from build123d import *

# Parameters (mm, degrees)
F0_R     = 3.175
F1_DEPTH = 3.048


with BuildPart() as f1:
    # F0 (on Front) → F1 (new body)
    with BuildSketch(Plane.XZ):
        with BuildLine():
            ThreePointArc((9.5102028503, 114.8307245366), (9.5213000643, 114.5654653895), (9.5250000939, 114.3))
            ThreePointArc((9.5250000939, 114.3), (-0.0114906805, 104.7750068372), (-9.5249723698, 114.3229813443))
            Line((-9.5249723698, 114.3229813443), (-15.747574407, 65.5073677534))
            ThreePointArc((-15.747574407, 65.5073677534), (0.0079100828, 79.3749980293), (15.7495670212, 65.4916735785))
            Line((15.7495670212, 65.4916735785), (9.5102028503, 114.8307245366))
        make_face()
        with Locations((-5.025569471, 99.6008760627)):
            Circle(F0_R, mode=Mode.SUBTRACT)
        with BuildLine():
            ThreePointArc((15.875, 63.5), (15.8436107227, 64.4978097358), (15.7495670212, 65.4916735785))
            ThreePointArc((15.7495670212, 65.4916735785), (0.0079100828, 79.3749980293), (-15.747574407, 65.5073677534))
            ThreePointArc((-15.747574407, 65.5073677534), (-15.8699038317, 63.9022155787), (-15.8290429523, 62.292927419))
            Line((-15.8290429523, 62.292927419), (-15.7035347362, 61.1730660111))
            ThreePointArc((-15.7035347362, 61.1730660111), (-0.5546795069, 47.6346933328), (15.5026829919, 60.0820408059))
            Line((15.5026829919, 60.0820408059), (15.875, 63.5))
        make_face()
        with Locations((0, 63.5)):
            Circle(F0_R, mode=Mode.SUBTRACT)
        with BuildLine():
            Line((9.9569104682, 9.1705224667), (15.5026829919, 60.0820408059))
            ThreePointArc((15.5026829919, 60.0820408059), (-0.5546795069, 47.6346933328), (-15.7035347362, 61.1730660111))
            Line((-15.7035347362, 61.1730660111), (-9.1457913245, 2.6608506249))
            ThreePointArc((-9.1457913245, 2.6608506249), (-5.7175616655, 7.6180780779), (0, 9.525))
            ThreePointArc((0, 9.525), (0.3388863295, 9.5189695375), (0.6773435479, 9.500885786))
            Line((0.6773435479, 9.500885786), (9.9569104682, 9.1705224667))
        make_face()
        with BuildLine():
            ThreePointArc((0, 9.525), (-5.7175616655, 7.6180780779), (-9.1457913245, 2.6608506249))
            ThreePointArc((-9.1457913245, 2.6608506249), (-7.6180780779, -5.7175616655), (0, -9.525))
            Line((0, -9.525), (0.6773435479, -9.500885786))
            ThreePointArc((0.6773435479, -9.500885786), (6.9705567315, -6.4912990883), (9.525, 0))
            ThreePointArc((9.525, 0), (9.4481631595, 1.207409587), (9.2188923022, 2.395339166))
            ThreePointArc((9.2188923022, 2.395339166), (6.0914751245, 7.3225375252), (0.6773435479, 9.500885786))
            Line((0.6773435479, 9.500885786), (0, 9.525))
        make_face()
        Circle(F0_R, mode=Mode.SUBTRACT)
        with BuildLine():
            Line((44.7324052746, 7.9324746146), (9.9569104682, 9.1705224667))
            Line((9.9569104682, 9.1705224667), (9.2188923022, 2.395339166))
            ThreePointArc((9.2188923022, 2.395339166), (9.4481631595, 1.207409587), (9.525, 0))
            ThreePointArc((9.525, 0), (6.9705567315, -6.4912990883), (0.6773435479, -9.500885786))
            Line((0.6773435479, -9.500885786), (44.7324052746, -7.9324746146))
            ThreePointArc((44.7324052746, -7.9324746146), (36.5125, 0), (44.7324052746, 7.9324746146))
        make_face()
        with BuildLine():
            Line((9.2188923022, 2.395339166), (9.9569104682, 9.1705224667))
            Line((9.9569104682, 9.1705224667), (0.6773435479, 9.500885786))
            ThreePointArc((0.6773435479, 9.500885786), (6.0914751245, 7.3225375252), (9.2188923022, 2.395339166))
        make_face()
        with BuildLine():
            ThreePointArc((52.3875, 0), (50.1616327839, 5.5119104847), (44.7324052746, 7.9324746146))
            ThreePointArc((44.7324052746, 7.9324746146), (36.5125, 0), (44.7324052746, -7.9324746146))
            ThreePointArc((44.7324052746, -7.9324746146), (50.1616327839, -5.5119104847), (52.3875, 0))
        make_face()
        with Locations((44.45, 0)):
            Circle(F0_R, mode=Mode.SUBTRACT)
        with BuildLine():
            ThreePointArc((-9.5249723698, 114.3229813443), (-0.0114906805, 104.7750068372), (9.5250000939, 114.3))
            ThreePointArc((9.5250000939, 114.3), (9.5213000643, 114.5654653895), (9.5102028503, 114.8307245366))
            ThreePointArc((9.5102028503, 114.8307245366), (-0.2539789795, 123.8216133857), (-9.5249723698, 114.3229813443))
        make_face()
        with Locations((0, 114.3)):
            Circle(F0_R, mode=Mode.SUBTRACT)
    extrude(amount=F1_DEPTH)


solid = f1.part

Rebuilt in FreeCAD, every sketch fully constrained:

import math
import FreeCAD as App
import Part
import Sketcher
Q = App.Units.Quantity

doc = App.newDocument("Part")
params = doc.addObject("Spreadsheet::Sheet", "Params")
for row, (alias, value) in enumerate([
    ("sketch1_diameter", "0.25 in"),
    ("sketch1_radius", "0.625 in"),
    ("sketch1_radius2", "0.375 in"),
    ("sketch1_radius3", "0.3125 in"),
    ("pad1_length", "0.12 in"),
], start=1):
    params.set(f"A{row}", alias)
    params.set(f"B{row}", "=" + value)
    params.setAlias(f"B{row}", alias)

body = doc.addObject("PartDesign::Body", "Body")

# Sketch on XZ plane
sketch1 = body.newObject("Sketcher::SketchObject", "Sketch")
sketch1.AttachmentSupport = (doc.getObject("XZ_Plane"), [""])
sketch1.MapMode = "FlatFace"
sketch1.addGeometry([
    Part.LineSegment(App.Vector(44.732405, 7.932475, 0), App.Vector(9.95691, 9.170522, 0)),  # 0
    Part.LineSegment(App.Vector(9.95691, 9.170522, 0), App.Vector(15.875, 63.5, 0)),  # 1
    Part.ArcOfCircle(Part.Circle(App.Vector(0, 63.5, 0), App.Vector(0, 0, 1), 15.875), math.radians(0), math.radians(7.207307)),  # 2
    Part.LineSegment(App.Vector(15.749567, 65.491674, 0), App.Vector(9.510203, 114.830725, 0)),  # 3
    Part.ArcOfCircle(Part.Circle(App.Vector(0, 114.3, 0), App.Vector(0, 0, 1), 9.525), math.radians(3.194124), math.radians(179.86176)),  # 4
    Part.LineSegment(App.Vector(-9.524972, 114.322981, 0), App.Vector(-15.747574, 65.507368, 0)),  # 5
    Part.ArcOfCircle(Part.Circle(App.Vector(0, 63.5, 0), App.Vector(0, 0, 1), 15.875), math.radians(172.735595), math.radians(184.360755)),  # 6
    Part.LineSegment(App.Vector(-15.829043, 62.292927, 0), App.Vector(-15.703535, 61.173066, 0)),  # 7
    Part.LineSegment(App.Vector(-15.703535, 61.173066, 0), App.Vector(-9.145791, 2.660851, 0)),  # 8
    Part.ArcOfCircle(Part.Circle(App.Vector(0, 0, 0), App.Vector(0, 0, 1), 9.525), math.radians(163.778323), math.radians(270)),  # 9
    Part.LineSegment(App.Vector(0, -9.525, 0), App.Vector(0.677344, -9.500886, 0)),  # 10
    Part.LineSegment(App.Vector(0.677344, -9.500886, 0), App.Vector(44.732405, -7.932475, 0)),  # 11
    Part.ArcOfCircle(Part.Circle(App.Vector(44.45, 0, 0), App.Vector(0, 0, 1), 7.9375), math.radians(-87.961065), math.radians(0)),  # 12
    Part.ArcOfCircle(Part.Circle(App.Vector(44.45, 0, 0), App.Vector(0, 0, 1), 7.9375), math.radians(0), math.radians(87.961065)),  # 13
    Part.Circle(App.Vector(0, 0, 0), App.Vector(0, 0, 1), 3.175),  # 14
    Part.ArcOfCircle(Part.Circle(App.Vector(0, 0, 0), App.Vector(0, 0, 1), 9.525), math.radians(85.92213), math.radians(90)),  # 15
    Part.LineSegment(App.Vector(0.677344, 9.500886, 0), App.Vector(0, 9.525, 0)),  # 16
    Part.Circle(App.Vector(44.45, 0, 0), App.Vector(0, 0, 1), 3.175),  # 17
    Part.Circle(App.Vector(0, 63.5, 0), App.Vector(0, 0, 1), 3.175),  # 18
    Part.Circle(App.Vector(-5.025569, 99.600876, 0), App.Vector(0, 0, 1), 3.175),  # 19
    Part.Circle(App.Vector(0, 114.3, 0), App.Vector(0, 0, 1), 3.175),  # 20
], False)
sketch1.addConstraint([
    Sketcher.Constraint("Coincident", 0, 2, 1, 1),
    Sketcher.Constraint("Coincident", 1, 2, 2, 1),
    Sketcher.Constraint("Tangent", 2, 2, 3, 1),
    Sketcher.Constraint("Coincident", 3, 2, 4, 1),
    Sketcher.Constraint("Coincident", 4, 2, 5, 1),
    Sketcher.Constraint("Tangent", 5, 2, 6, 1),
    Sketcher.Constraint("Coincident", 6, 2, 7, 1),
    Sketcher.Constraint("Coincident", 7, 2, 8, 1),
    Sketcher.Constraint("Coincident", 8, 2, 9, 1),
    Sketcher.Constraint("Coincident", 9, 2, 10, 1),
    Sketcher.Constraint("Coincident", 10, 2, 11, 1),
    Sketcher.Constraint("Tangent", 11, 2, 12, 1),
    Sketcher.Constraint("Tangent", 12, 2, 13, 1),
    Sketcher.Constraint("Tangent", 13, 2, 0, 1),
    Sketcher.Constraint("Coincident", 15, 1, 16, 1),
    Sketcher.Constraint("Coincident", 16, 2, 15, 2),
    Sketcher.Constraint("Coincident", 9, 3, -1, 1),
    Sketcher.Constraint("Coincident", 14, 3, -1, 1),
    Sketcher.Constraint("Coincident", 15, 3, -1, 1),
    Sketcher.Constraint("Coincident", 6, 3, 2, 3),
    Sketcher.Constraint("Coincident", 17, 3, 12, 3),
    Sketcher.Constraint("Coincident", 18, 3, 2, 3),
    Sketcher.Constraint("Coincident", 20, 3, 4, 3),
    Sketcher.Constraint("Equal", 2, 6),
    Sketcher.Constraint("Equal", 4, 9),
    Sketcher.Constraint("Equal", 12, 13),
    Sketcher.Constraint("Equal", 9, 15),
    Sketcher.Constraint("Equal", 14, 17),
    Sketcher.Constraint("Equal", 17, 18),
    Sketcher.Constraint("Equal", 18, 19),
    Sketcher.Constraint("Equal", 19, 20),
    Sketcher.Constraint("Symmetric", 11, 2, 13, 2, -1),
    Sketcher.Constraint("Symmetric", 10, 2, 15, 1, -1),
    Sketcher.Constraint("PointOnObject", 2, 3, -2),
    Sketcher.Constraint("PointOnObject", 4, 3, -2),
    Sketcher.Constraint("PointOnObject", 9, 2, -2),
    Sketcher.Constraint("PointOnObject", 12, 2, -1),
    Sketcher.Constraint("PointOnObject", 16, 2, -2),
    Sketcher.Constraint("Parallel", 7, 8),
    Sketcher.Constraint("Parallel", 10, 11),
    Sketcher.Constraint("Horizontal", 18, 3, 1, 2),
    Sketcher.Constraint("Diameter", 14, Q("0.25 in")),
    Sketcher.Constraint("Radius", 2, Q("0.625 in")),
    Sketcher.Constraint("Radius", 4, Q("0.375 in")),
    Sketcher.Constraint("Radius", 12, Q("0.3125 in")),
    Sketcher.Constraint("DistanceY", 2, 3, 4, 3, Q("2 in")),
    Sketcher.Constraint("DistanceY", -1, 1, 2, 3, Q("2.5 in")),
    Sketcher.Constraint("DistanceX", -1, 1, 12, 3, Q("1.75 in")),
    Sketcher.Constraint("DistanceY", 7, 2, 5, 2, 4.334302),
    Sketcher.Constraint("DistanceX", 8, 2, 0, 2, 19.102702),
    Sketcher.Constraint("DistanceX", 19, 3, -1, 1, 5.025569),
    Sketcher.Constraint("DistanceX", -1, 1, 0, 2, 9.95691),
    Sketcher.Constraint("DistanceY", -1, 1, 4, 2, 114.322981),
    Sketcher.Constraint("DistanceY", 19, 3, 3, 2, 15.229848),
    Sketcher.Constraint("DistanceY", 2, 2, 3, 2, 49.339051),
    Sketcher.Constraint("DistanceX", 6, 2, 5, 2, 0.081469),
])
sketch1.setExpression("Constraints[41]", "Params.sketch1_diameter")
sketch1.setExpression("Constraints[42]", "Params.sketch1_radius")
sketch1.setExpression("Constraints[43]", "Params.sketch1_radius2")
sketch1.setExpression("Constraints[44]", "Params.sketch1_radius3")
pad1 = body.newObject("PartDesign::Pad", "Pad")
pad1.Profile = sketch1
pad1.setExpression("Length", "Params.pad1_length")

doc.recompute()
